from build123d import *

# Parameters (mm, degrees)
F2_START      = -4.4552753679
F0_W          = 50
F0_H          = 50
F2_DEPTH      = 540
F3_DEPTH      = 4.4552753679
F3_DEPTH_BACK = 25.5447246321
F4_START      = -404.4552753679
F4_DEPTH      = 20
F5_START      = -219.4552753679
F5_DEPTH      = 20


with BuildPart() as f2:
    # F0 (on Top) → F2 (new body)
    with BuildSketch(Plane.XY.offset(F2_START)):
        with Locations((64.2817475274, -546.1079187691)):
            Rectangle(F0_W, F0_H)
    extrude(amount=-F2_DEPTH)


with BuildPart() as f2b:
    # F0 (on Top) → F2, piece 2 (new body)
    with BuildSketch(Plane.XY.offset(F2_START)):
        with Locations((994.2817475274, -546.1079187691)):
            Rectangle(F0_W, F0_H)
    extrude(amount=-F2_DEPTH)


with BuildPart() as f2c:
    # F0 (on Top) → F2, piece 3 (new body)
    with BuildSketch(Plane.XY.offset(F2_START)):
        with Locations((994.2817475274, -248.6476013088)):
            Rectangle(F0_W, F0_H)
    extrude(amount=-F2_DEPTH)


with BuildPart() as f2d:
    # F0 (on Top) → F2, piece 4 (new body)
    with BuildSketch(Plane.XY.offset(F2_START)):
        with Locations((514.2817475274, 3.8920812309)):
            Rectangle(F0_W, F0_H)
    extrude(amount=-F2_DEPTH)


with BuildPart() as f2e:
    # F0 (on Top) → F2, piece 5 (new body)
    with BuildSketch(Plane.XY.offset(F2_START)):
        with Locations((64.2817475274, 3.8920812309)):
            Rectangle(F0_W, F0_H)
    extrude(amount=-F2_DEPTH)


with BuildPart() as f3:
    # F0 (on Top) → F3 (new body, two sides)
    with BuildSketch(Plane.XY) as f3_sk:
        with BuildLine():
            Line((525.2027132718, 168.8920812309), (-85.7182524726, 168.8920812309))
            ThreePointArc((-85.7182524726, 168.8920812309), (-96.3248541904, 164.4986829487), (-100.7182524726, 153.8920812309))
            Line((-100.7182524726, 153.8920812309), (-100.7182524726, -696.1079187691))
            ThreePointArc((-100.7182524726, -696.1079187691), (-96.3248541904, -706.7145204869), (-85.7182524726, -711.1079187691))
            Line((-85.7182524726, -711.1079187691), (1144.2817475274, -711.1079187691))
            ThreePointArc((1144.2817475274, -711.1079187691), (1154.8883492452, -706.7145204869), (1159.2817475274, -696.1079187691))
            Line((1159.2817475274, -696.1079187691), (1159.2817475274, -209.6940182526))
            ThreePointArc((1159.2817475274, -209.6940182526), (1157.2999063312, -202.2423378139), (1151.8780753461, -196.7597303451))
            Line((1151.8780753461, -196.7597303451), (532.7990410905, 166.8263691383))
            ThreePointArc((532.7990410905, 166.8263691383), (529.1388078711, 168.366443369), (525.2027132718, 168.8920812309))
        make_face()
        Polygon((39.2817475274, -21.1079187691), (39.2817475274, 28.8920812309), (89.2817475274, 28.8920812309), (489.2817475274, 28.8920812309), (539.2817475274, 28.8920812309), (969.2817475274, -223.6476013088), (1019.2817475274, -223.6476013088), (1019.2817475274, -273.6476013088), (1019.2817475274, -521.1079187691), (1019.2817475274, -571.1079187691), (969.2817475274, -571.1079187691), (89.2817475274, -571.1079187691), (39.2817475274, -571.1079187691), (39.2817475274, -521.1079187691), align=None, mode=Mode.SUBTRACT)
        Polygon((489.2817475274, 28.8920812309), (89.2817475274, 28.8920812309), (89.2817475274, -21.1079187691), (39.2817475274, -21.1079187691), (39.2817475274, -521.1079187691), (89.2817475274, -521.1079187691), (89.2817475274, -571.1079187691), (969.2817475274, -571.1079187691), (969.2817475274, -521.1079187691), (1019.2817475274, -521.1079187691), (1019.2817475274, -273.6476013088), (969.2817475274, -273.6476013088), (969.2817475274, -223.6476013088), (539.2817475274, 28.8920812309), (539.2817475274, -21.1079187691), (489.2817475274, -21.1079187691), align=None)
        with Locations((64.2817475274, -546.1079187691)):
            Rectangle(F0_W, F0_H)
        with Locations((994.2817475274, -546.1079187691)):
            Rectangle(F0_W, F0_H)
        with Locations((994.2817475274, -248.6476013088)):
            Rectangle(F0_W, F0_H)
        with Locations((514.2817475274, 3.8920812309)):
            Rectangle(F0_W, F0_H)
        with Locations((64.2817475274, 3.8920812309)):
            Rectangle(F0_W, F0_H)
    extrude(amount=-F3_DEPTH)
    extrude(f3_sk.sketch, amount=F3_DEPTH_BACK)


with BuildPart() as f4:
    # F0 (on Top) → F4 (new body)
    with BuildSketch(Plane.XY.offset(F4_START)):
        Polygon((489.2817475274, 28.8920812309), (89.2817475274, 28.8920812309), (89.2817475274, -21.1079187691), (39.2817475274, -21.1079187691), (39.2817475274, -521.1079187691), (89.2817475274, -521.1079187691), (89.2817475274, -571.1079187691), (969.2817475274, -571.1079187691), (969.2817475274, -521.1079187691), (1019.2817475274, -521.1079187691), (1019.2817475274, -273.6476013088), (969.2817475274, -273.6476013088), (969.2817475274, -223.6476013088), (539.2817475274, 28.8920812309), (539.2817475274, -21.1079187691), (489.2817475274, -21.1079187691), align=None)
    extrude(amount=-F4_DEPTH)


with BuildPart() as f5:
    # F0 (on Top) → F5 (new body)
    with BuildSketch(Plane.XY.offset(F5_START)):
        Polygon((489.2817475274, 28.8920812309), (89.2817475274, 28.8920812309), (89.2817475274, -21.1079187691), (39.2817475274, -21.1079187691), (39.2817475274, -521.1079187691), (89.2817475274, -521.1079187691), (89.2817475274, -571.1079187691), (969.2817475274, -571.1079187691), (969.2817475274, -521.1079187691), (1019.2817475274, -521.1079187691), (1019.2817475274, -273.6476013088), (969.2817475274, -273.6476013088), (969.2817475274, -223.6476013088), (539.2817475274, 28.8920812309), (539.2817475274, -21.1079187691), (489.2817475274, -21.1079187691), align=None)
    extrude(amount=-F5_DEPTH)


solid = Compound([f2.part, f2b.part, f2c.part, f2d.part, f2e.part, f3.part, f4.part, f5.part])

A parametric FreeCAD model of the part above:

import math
import FreeCAD as App
import Part
import Sketcher

V = App.Vector
Q = App.Units.Quantity


def add_polygon(sketch, points):
    """Adds a closed chain of lines whose ends are joined by coincident constraints."""
    first, n = sketch.GeometryCount, len(points)
    for a, b in zip(points, points[1:] + points[:1]):
        sketch.addGeometry(Part.LineSegment(App.Vector(*a, 0), App.Vector(*b, 0)), False)
    for i in range(n):
        sketch.addConstraint(Sketcher.Constraint("Coincident", first + i, 2, first + (i + 1) % n, 1))

doc = App.newDocument("Part")
body = doc.addObject("PartDesign::Body", "Body")

# Sketch on XY plane
sketch1 = body.newObject("Sketcher::SketchObject", "Sketch")
sketch1.AttachmentSupport = (doc.getObject("XY_Plane"), [""])
sketch1.MapMode = "FlatFace"
sketch1.AttachmentOffset = App.Placement(V(0, 0, -4.455275), App.Rotation())
add_polygon(sketch1, [(39, -521), (39, -571), (89, -571), (89, -521)])  # lines 0-3
sketch1.addConstraint(Sketcher.Constraint("Vertical", 0))
sketch1.addConstraint(Sketcher.Constraint("Horizontal", 1))
sketch1.addConstraint(Sketcher.Constraint("Vertical", 2))
sketch1.addConstraint(Sketcher.Constraint("Horizontal", 3))
sketch1.addConstraint(Sketcher.Constraint("Equal", 3, 0))
sketch1.addConstraint(Sketcher.Constraint("DistanceX", 1, 1, 1, 2, Q("50 mm")))
sketch1.addConstraint(Sketcher.Constraint("DistanceY", 0, 2, -1, 1, Q("571.107919 mm")))
sketch1.addConstraint(Sketcher.Constraint("DistanceX", -1, 1, 0, 2, Q("39.281748 mm")))
pad1 = body.newObject("PartDesign::Pad", "Pad")
pad1.Profile = sketch1
pad1.Length = 540
pad1.Reversed = True
body2 = doc.addObject("PartDesign::Body", "Body001")

# Sketch on XY plane
sketch2 = body2.newObject("Sketcher::SketchObject", "Sketch001")
sketch2.AttachmentSupport = (doc.getObject("XY_Plane001"), [""])
sketch2.MapMode = "FlatFace"
sketch2.AttachmentOffset = App.Placement(V(0, 0, -4.455275), App.Rotation())
add_polygon(sketch2, [(969, -521), (969, -571), (1019, -571), (1019, -521)])  # lines 0-3
sketch2.addConstraint(Sketcher.Constraint("Vertical", 0))
sketch2.addConstraint(Sketcher.Constraint("Horizontal", 1))
sketch2.addConstraint(Sketcher.Constraint("Vertical", 2))
sketch2.addConstraint(Sketcher.Constraint("Horizontal", 3))
sketch2.addConstraint(Sketcher.Constraint("Equal", 3, 0))
sketch2.addConstraint(Sketcher.Constraint("DistanceX", 1, 1, 1, 2, Q("50 mm")))
sketch2.addConstraint(Sketcher.Constraint("DistanceY", 0, 2, -1, 1, Q("571.107919 mm")))
sketch2.addConstraint(Sketcher.Constraint("DistanceX", -1, 1, 0, 2, Q("969.281748 mm")))
pad2 = body2.newObject("PartDesign::Pad", "Pad001")
pad2.Profile = sketch2
pad2.Length = 540
pad2.Reversed = True
body3 = doc.addObject("PartDesign::Body", "Body002")

# Sketch on XY plane
sketch3 = body3.newObject("Sketcher::SketchObject", "Sketch002")
sketch3.AttachmentSupport = (doc.getObject("XY_Plane002"), [""])
sketch3.MapMode = "FlatFace"
sketch3.AttachmentOffset = App.Placement(V(0, 0, -4.455275), App.Rotation())
add_polygon(sketch3, [(969, -224), (969, -274), (1019, -274), (1019, -224)])  # lines 0-3
sketch3.addConstraint(Sketcher.Constraint("Vertical", 0))
sketch3.addConstraint(Sketcher.Constraint("Horizontal", 1))
sketch3.addConstraint(Sketcher.Constraint("Vertical", 2))
sketch3.addConstraint(Sketcher.Constraint("Horizontal", 3))
sketch3.addConstraint(Sketcher.Constraint("Equal", 3, 0))
sketch3.addConstraint(Sketcher.Constraint("DistanceX", 1, 1, 1, 2, Q("50 mm")))
sketch3.addConstraint(Sketcher.Constraint("DistanceY", 0, 2, -1, 1, Q("273.647601 mm")))
sketch3.addConstraint(Sketcher.Constraint("DistanceX", -1, 1, 0, 2, Q("969.281748 mm")))
pad3 = body3.newObject("PartDesign::Pad", "Pad002")
pad3.Profile = sketch3
pad3.Length = 540
pad3.Reversed = True
body4 = doc.addObject("PartDesign::Body", "Body003")

# Sketch on XY plane
sketch4 = body4.newObject("Sketcher::SketchObject", "Sketch003")
sketch4.AttachmentSupport = (doc.getObject("XY_Plane003"), [""])
sketch4.MapMode = "FlatFace"
sketch4.AttachmentOffset = App.Placement(V(0, 0, -4.455275), App.Rotation())
add_polygon(sketch4, [(489, 29), (489, -21), (539, -21), (539, 29)])  # lines 0-3
sketch4.addConstraint(Sketcher.Constraint("Vertical", 0))
sketch4.addConstraint(Sketcher.Constraint("Horizontal", 1))
sketch4.addConstraint(Sketcher.Constraint("Vertical", 2))
sketch4.addConstraint(Sketcher.Constraint("Horizontal", 3))
sketch4.addConstraint(Sketcher.Constraint("Equal", 3, 0))
sketch4.addConstraint(Sketcher.Constraint("DistanceX", 1, 1, 1, 2, Q("50 mm")))
sketch4.addConstraint(Sketcher.Constraint("DistanceY", 0, 2, -1, 1, Q("21.107919 mm")))
sketch4.addConstraint(Sketcher.Constraint("DistanceX", -1, 1, 0, 2, Q("489.281748 mm")))
pad4 = body4.newObject("PartDesign::Pad", "Pad003")
pad4.Profile = sketch4
pad4.Length = 540
pad4.Reversed = True
body5 = doc.addObject("PartDesign::Body", "Body004")

# Sketch on XY plane
sketch5 = body5.newObject("Sketcher::SketchObject", "Sketch004")
sketch5.AttachmentSupport = (doc.getObject("XY_Plane004"), [""])
sketch5.MapMode = "FlatFace"
sketch5.AttachmentOffset = App.Placement(V(0, 0, -4.455275), App.Rotation())
add_polygon(sketch5, [(39, 29), (39, -21), (89, -21), (89, 29)])  # lines 0-3
sketch5.addConstraint(Sketcher.Constraint("Vertical", 0))
sketch5.addConstraint(Sketcher.Constraint("Horizontal", 1))
sketch5.addConstraint(Sketcher.Constraint("Vertical", 2))
sketch5.addConstraint(Sketcher.Constraint("Horizontal", 3))
sketch5.addConstraint(Sketcher.Constraint("Equal", 3, 0))
sketch5.addConstraint(Sketcher.Constraint("DistanceX", 1, 1, 1, 2, Q("50 mm")))
sketch5.addConstraint(Sketcher.Constraint("DistanceY", 0, 2, -1, 1, Q("21.107919 mm")))
sketch5.addConstraint(Sketcher.Constraint("DistanceX", -1, 1, 0, 2, Q("39.281748 mm")))
pad5 = body5.newObject("PartDesign::Pad", "Pad004")
pad5.Profile = sketch5
pad5.Length = 540
pad5.Reversed = True
body6 = doc.addObject("PartDesign::Body", "Body005")

# Sketch on XY plane
sketch6 = body6.newObject("Sketcher::SketchObject", "Sketch005")
sketch6.AttachmentSupport = (doc.getObject("XY_Plane005"), [""])
sketch6.MapMode = "FlatFace"
sketch6.addGeometry(Part.LineSegment(V(525, 169, 0), V(-86, 169, 0)), False)
sketch6.addGeometry(Part.ArcOfCircle(Part.Circle(V(-86, 154, 0), V(0, 0, 1), 15), math.radians(90), math.radians(180)), False)
sketch6.addGeometry(Part.LineSegment(V(-101, 154, 0), V(-101, -696, 0)), False)
sketch6.addGeometry(Part.ArcOfCircle(Part.Circle(V(-86, -696, 0), V(0, 0, 1), 15), math.radians(180), math.radians(270)), False)
sketch6.addGeometry(Part.LineSegment(V(-86, -711, 0), V(1144, -711, 0)), False)
sketch6.addGeometry(Part.ArcOfCircle(Part.Circle(V(1144, -696, 0), V(0, 0, 1), 15), math.radians(-90), math.radians(0)), False)
sketch6.addGeometry(Part.LineSegment(V(1159, -696, 0), V(1159, -210, 0)), False)
sketch6.addGeometry(Part.ArcOfCircle(Part.Circle(V(1144, -210, 0), V(0, 0, 1), 15), math.radians(0), math.radians(60)), False)
sketch6.addGeometry(Part.LineSegment(V(1152, -197, 0), V(533, 167, 0)), False)
sketch6.addGeometry(Part.ArcOfCircle(Part.Circle(V(525, 154, 0), V(0, 0, 1), 15), math.radians(60), math.radians(90)), False)
sketch6.addConstraint(Sketcher.Constraint("Tangent", 0, 2, 1, 1))
sketch6.addConstraint(Sketcher.Constraint("Tangent", 1, 2, 2, 1))
sketch6.addConstraint(Sketcher.Constraint("Tangent", 2, 2, 3, 1))
sketch6.addConstraint(Sketcher.Constraint("Tangent", 3, 2, 4, 1))
sketch6.addConstraint(Sketcher.Constraint("Tangent", 4, 2, 5, 1))
sketch6.addConstraint(Sketcher.Constraint("Tangent", 5, 2, 6, 1))
sketch6.addConstraint(Sketcher.Constraint("Tangent", 6, 2, 7, 1))
sketch6.addConstraint(Sketcher.Constraint("Tangent", 7, 2, 8, 1))
sketch6.addConstraint(Sketcher.Constraint("Tangent", 8, 2, 9, 1))
sketch6.addConstraint(Sketcher.Constraint("Tangent", 9, 2, 0, 1))
sketch6.addConstraint(Sketcher.Constraint("Horizontal", 0))
sketch6.addConstraint(Sketcher.Constraint("Vertical", 2))
sketch6.addConstraint(Sketcher.Constraint("Horizontal", 4))
sketch6.addConstraint(Sketcher.Constraint("Vertical", 6))
sketch6.addConstraint(Sketcher.Constraint("Equal", 1, 3))
sketch6.addConstraint(Sketcher.Constraint("Equal", 3, 5))
sketch6.addConstraint(Sketcher.Constraint("Equal", 5, 7))
sketch6.addConstraint(Sketcher.Constraint("Equal", 7, 9))
sketch6.addConstraint(Sketcher.Constraint("Radius", 1, Q("15 mm")))
sketch6.addConstraint(Sketcher.Constraint("DistanceX", 4, 1, 4, 2, Q("1230 mm")))
sketch6.addConstraint(Sketcher.Constraint("DistanceY", 2, 2, 2, 1, Q("850 mm")))
sketch6.addConstraint(Sketcher.Constraint("DistanceY", 6, 1, 6, 2, Q("486.413901 mm")))
sketch6.addConstraint(Sketcher.Constraint("DistanceX", 0, 2, 0, 1, Q("610.920966 mm")))
sketch6.addConstraint(Sketcher.Constraint("DistanceY", -1, 1, 1, 3, Q("153.892081 mm")))
sketch6.addConstraint(Sketcher.Constraint("DistanceX", -1, 1, 8, 2, Q("532.799041 mm")))
pad6 = body6.newObject("PartDesign::Pad", "Pad005")
pad6.Profile = sketch6
pad6.Type = "TwoLengths"
pad6.Length = 4.455275
pad6.Length2 = 25.544725
pad6.Reversed = True
body7 = doc.addObject("PartDesign::Body", "Body006")

# Sketch on XY plane
sketch7 = body7.newObject("Sketcher::SketchObject", "Sketch006")
sketch7.AttachmentSupport = (doc.getObject("XY_Plane006"), [""])
sketch7.MapMode = "FlatFace"
sketch7.AttachmentOffset = App.Placement(V(0, 0, -404.455275), App.Rotation())
add_polygon(sketch7, [(489, 29), (89, 29), (89, -21), (39, -21), (39, -521), (89, -521), (89, -571), (969, -571), (969, -521), (1019, -521), (1019, -274), (969, -274), (969, -224), (539, 29), (539, -21), (489, -21)])  # lines 0-15
sketch7.addConstraint(Sketcher.Constraint("Horizontal", 0))
sketch7.addConstraint(Sketcher.Constraint("Vertical", 1))
sketch7.addConstraint(Sketcher.Constraint("Horizontal", 2))
sketch7.addConstraint(Sketcher.Constraint("Vertical", 3))
sketch7.addConstraint(Sketcher.Constraint("Horizontal", 4))
sketch7.addConstraint(Sketcher.Constraint("Vertical", 5))
sketch7.addConstraint(Sketcher.Constraint("Horizontal", 6))
sketch7.addConstraint(Sketcher.Constraint("Vertical", 7))
sketch7.addConstraint(Sketcher.Constraint("Horizontal", 8))
sketch7.addConstraint(Sketcher.Constraint("Vertical", 9))
sketch7.addConstraint(Sketcher.Constraint("Horizontal", 10))
sketch7.addConstraint(Sketcher.Constraint("Vertical", 11))
sketch7.addConstraint(Sketcher.Constraint("Vertical", 13))
sketch7.addConstraint(Sketcher.Constraint("Horizontal", 14))
sketch7.addConstraint(Sketcher.Constraint("Vertical", 15))
sketch7.addConstraint(Sketcher.Constraint("Horizontal", 4, 2, 7, 2))
sketch7.addConstraint(Sketcher.Constraint("Horizontal", 0, 2, 12, 2))
sketch7.addConstraint(Sketcher.Constraint("Horizontal", 2, 2, 13, 2))
sketch7.addConstraint(Sketcher.Constraint("Vertical", 1, 2, 4, 2))
sketch7.addConstraint(Sketcher.Constraint("Vertical", 7, 2, 10, 2))
sketch7.addConstraint(Sketcher.Constraint("Equal", 4, 8))
sketch7.addConstraint(Sketcher.Constraint("Equal", 10, 14))
sketch7.addConstraint(Sketcher.Constraint("Equal", 14, 1))
sketch7.addConstraint(Sketcher.Constraint("Equal", 1, 5))
sketch7.addConstraint(Sketcher.Constraint("Equal", 7, 11))
sketch7.addConstraint(Sketcher.Constraint("DistanceX", 0, 2, 0, 1, Q("400 mm")))
sketch7.addConstraint(Sketcher.Constraint("DistanceX", 2, 2, 2, 1, Q("50 mm")))
sketch7.addConstraint(Sketcher.Constraint("DistanceX", 6, 1, 6, 2, Q("880 mm")))
sketch7.addConstraint(Sketcher.Constraint("DistanceY", 3, 2, 3, 1, Q("500 mm")))
sketch7.addConstraint(Sketcher.Constraint("DistanceY", 9, 2, -1, 1, Q("273.647601 mm")))
sketch7.addConstraint(Sketcher.Constraint("DistanceY", 9, 1, 9, 2, Q("247.460317 mm")))
sketch7.addConstraint(Sketcher.Constraint("DistanceX", -1, 1, 0, 2, Q("89.281748 mm")))
pad7 = body7.newObject("PartDesign::Pad", "Pad006")
pad7.Profile = sketch7
pad7.Length = 20
pad7.Reversed = True
body8 = doc.addObject("PartDesign::Body", "Body007")

# Sketch on XY plane
sketch8 = body8.newObject("Sketcher::SketchObject", "Sketch007")
sketch8.AttachmentSupport = (doc.getObject("XY_Plane007"), [""])
sketch8.MapMode = "FlatFace"
sketch8.AttachmentOffset = App.Placement(V(0, 0, -219.455275), App.Rotation())
add_polygon(sketch8, [(489, 29), (89, 29), (89, -21), (39, -21), (39, -521), (89, -521), (89, -571), (969, -571), (969, -521), (1019, -521), (1019, -274), (969, -274), (969, -224), (539, 29), (539, -21), (489, -21)])  # lines 0-15
sketch8.addConstraint(Sketcher.Constraint("Horizontal", 0))
sketch8.addConstraint(Sketcher.Constraint("Vertical", 1))
sketch8.addConstraint(Sketcher.Constraint("Horizontal", 2))
sketch8.addConstraint(Sketcher.Constraint("Vertical", 3))
sketch8.addConstraint(Sketcher.Constraint("Horizontal", 4))
sketch8.addConstraint(Sketcher.Constraint("Vertical", 5))
sketch8.addConstraint(Sketcher.Constraint("Horizontal", 6))
sketch8.addConstraint(Sketcher.Constraint("Vertical", 7))
sketch8.addConstraint(Sketcher.Constraint("Horizontal", 8))
sketch8.addConstraint(Sketcher.Constraint("Vertical", 9))
sketch8.addConstraint(Sketcher.Constraint("Horizontal", 10))
sketch8.addConstraint(Sketcher.Constraint("Vertical", 11))
sketch8.addConstraint(Sketcher.Constraint("Vertical", 13))
sketch8.addConstraint(Sketcher.Constraint("Horizontal", 14))
sketch8.addConstraint(Sketcher.Constraint("Vertical", 15))
sketch8.addConstraint(Sketcher.Constraint("Horizontal", 4, 2, 7, 2))
sketch8.addConstraint(Sketcher.Constraint("Horizontal", 0, 2, 12, 2))
sketch8.addConstraint(Sketcher.Constraint("Horizontal", 2, 2, 13, 2))
sketch8.addConstraint(Sketcher.Constraint("Vertical", 1, 2, 4, 2))
sketch8.addConstraint(Sketcher.Constraint("Vertical", 7, 2, 10, 2))
sketch8.addConstraint(Sketcher.Constraint("Equal", 4, 8))
sketch8.addConstraint(Sketcher.Constraint("Equal", 10, 14))
sketch8.addConstraint(Sketcher.Constraint("Equal", 14, 1))
sketch8.addConstraint(Sketcher.Constraint("Equal", 1, 5))
sketch8.addConstraint(Sketcher.Constraint("Equal", 7, 11))
sketch8.addConstraint(Sketcher.Constraint("DistanceX", 0, 2, 0, 1, Q("400 mm")))
sketch8.addConstraint(Sketcher.Constraint("DistanceX", 2, 2, 2, 1, Q("50 mm")))
sketch8.addConstraint(Sketcher.Constraint("DistanceX", 6, 1, 6, 2, Q("880 mm")))
sketch8.addConstraint(Sketcher.Constraint("DistanceY", 3, 2, 3, 1, Q("500 mm")))
sketch8.addConstraint(Sketcher.Constraint("DistanceY", 9, 2, -1, 1, Q("273.647601 mm")))
sketch8.addConstraint(Sketcher.Constraint("DistanceY", 9, 1, 9, 2, Q("247.460317 mm")))
sketch8.addConstraint(Sketcher.Constraint("DistanceX", -1, 1, 0, 2, Q("89.281748 mm")))
pad8 = body8.newObject("PartDesign::Pad", "Pad007")
pad8.Profile = sketch8
pad8.Length = 20
pad8.Reversed = True

doc.recompute()
